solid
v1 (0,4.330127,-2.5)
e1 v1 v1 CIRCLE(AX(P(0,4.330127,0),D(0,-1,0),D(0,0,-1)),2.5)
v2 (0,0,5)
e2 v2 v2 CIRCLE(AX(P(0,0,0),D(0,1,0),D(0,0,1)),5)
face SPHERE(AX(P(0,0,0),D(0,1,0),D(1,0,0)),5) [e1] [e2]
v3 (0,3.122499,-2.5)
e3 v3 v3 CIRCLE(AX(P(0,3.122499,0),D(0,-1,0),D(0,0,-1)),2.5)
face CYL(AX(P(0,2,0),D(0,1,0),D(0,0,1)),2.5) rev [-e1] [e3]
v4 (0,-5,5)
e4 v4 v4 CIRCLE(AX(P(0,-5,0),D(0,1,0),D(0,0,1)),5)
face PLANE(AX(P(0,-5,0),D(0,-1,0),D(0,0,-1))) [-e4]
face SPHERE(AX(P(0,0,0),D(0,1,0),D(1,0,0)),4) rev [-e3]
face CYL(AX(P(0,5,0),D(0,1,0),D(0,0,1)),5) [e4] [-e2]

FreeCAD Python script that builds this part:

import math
import FreeCAD as App
import Part
import Sketcher
Q = App.Units.Quantity

doc = App.newDocument("Part")
body = doc.addObject("PartDesign::Body", "Body")

# Sketch on XY plane
sketch1 = body.newObject("Sketcher::SketchObject", "Sketch")
sketch1.AttachmentSupport = (doc.getObject("XY_Plane"), [""])
sketch1.MapMode = "FlatFace"
sketch1.addGeometry([
    Part.ArcOfCircle(Part.Circle(App.Vector(0, 0, 0), App.Vector(0, 0, 1), 5), math.radians(0), math.radians(90)),
    Part.LineSegment(App.Vector(0, 5, 0), App.Vector(0, -5, 0)),
    Part.LineSegment(App.Vector(0, -5, 0), App.Vector(5, -5, 0)),
    Part.LineSegment(App.Vector(5, -5, 0), App.Vector(5, 0, 0)),
], False)
sketch1.addConstraint([
    Sketcher.Constraint("Coincident", 0, 2, 1, 1),
    Sketcher.Constraint("Coincident", 1, 2, 2, 1),
    Sketcher.Constraint("Coincident", 2, 2, 3, 1),
    Sketcher.Constraint("Tangent", 3, 2, 0, 1),
    Sketcher.Constraint("Vertical", 1),
    Sketcher.Constraint("Horizontal", 2),
    Sketcher.Constraint("Vertical", 3),
    Sketcher.Constraint("Coincident", 0, 3, -1, 1),
    Sketcher.Constraint("Symmetric", 0, 2, 1, 2, -1, 1),
    Sketcher.Constraint("Radius", 0, Q("5 mm")),
])
revolution = body.newObject("PartDesign::Revolution", "Revolution")
revolution.Profile = sketch1
revolution.ReferenceAxis = (sketch1, ["V_Axis"])
revolution.Angle = 360

# Sketch on XY plane
sketch2 = body.newObject("Sketcher::SketchObject", "Sketch001")
sketch2.AttachmentSupport = (doc.getObject("XY_Plane"), [""])
sketch2.MapMode = "FlatFace"
sketch2.addGeometry([
    Part.LineSegment(App.Vector(0, 4, 0), App.Vector(0, -4, 0)),
    Part.ArcOfCircle(Part.Circle(App.Vector(0, 0, 0), App.Vector(0, 0, 1), 4), math.radians(-90), math.radians(90)),
], False)
sketch2.addConstraint([
    Sketcher.Constraint("Coincident", 0, 1, 1, 2),
    Sketcher.Constraint("Coincident", 1, 1, 0, 2),
    Sketcher.Constraint("Vertical", 0),
    Sketcher.Constraint("Coincident", 1, 3, -1, 1),
    Sketcher.Constraint("PointOnObject", 0, 1, -2),
    Sketcher.Constraint("Radius", 1, Q("4 mm")),
])
groove = body.newObject("PartDesign::Groove", "Groove")
groove.Profile = sketch2
groove.ReferenceAxis = (sketch2, ["V_Axis"])
groove.Angle = 360

# Sketch on XZ plane
sketch3 = body.newObject("Sketcher::SketchObject", "Sketch002")
sketch3.AttachmentSupport = (doc.getObject("XZ_Plane"), [""])
sketch3.MapMode = "FlatFace"
sketch3.AttachmentOffset = App.Placement(App.Vector(0, 0, -5), App.Rotation())
sketch3.addGeometry(Part.Circle(App.Vector(0, 0, 0), App.Vector(0, 0, 1), 2.5), False)
sketch3.addConstraint([
    Sketcher.Constraint("Coincident", 0, 3, -1, 1),
    Sketcher.Constraint("Diameter", 0, Q("5 mm")),
])
pocket1 = body.newObject("PartDesign::Pocket", "Pocket")
pocket1.Profile = sketch3
pocket1.Length = 3
pocket1.Reversed = True

doc.recompute()
